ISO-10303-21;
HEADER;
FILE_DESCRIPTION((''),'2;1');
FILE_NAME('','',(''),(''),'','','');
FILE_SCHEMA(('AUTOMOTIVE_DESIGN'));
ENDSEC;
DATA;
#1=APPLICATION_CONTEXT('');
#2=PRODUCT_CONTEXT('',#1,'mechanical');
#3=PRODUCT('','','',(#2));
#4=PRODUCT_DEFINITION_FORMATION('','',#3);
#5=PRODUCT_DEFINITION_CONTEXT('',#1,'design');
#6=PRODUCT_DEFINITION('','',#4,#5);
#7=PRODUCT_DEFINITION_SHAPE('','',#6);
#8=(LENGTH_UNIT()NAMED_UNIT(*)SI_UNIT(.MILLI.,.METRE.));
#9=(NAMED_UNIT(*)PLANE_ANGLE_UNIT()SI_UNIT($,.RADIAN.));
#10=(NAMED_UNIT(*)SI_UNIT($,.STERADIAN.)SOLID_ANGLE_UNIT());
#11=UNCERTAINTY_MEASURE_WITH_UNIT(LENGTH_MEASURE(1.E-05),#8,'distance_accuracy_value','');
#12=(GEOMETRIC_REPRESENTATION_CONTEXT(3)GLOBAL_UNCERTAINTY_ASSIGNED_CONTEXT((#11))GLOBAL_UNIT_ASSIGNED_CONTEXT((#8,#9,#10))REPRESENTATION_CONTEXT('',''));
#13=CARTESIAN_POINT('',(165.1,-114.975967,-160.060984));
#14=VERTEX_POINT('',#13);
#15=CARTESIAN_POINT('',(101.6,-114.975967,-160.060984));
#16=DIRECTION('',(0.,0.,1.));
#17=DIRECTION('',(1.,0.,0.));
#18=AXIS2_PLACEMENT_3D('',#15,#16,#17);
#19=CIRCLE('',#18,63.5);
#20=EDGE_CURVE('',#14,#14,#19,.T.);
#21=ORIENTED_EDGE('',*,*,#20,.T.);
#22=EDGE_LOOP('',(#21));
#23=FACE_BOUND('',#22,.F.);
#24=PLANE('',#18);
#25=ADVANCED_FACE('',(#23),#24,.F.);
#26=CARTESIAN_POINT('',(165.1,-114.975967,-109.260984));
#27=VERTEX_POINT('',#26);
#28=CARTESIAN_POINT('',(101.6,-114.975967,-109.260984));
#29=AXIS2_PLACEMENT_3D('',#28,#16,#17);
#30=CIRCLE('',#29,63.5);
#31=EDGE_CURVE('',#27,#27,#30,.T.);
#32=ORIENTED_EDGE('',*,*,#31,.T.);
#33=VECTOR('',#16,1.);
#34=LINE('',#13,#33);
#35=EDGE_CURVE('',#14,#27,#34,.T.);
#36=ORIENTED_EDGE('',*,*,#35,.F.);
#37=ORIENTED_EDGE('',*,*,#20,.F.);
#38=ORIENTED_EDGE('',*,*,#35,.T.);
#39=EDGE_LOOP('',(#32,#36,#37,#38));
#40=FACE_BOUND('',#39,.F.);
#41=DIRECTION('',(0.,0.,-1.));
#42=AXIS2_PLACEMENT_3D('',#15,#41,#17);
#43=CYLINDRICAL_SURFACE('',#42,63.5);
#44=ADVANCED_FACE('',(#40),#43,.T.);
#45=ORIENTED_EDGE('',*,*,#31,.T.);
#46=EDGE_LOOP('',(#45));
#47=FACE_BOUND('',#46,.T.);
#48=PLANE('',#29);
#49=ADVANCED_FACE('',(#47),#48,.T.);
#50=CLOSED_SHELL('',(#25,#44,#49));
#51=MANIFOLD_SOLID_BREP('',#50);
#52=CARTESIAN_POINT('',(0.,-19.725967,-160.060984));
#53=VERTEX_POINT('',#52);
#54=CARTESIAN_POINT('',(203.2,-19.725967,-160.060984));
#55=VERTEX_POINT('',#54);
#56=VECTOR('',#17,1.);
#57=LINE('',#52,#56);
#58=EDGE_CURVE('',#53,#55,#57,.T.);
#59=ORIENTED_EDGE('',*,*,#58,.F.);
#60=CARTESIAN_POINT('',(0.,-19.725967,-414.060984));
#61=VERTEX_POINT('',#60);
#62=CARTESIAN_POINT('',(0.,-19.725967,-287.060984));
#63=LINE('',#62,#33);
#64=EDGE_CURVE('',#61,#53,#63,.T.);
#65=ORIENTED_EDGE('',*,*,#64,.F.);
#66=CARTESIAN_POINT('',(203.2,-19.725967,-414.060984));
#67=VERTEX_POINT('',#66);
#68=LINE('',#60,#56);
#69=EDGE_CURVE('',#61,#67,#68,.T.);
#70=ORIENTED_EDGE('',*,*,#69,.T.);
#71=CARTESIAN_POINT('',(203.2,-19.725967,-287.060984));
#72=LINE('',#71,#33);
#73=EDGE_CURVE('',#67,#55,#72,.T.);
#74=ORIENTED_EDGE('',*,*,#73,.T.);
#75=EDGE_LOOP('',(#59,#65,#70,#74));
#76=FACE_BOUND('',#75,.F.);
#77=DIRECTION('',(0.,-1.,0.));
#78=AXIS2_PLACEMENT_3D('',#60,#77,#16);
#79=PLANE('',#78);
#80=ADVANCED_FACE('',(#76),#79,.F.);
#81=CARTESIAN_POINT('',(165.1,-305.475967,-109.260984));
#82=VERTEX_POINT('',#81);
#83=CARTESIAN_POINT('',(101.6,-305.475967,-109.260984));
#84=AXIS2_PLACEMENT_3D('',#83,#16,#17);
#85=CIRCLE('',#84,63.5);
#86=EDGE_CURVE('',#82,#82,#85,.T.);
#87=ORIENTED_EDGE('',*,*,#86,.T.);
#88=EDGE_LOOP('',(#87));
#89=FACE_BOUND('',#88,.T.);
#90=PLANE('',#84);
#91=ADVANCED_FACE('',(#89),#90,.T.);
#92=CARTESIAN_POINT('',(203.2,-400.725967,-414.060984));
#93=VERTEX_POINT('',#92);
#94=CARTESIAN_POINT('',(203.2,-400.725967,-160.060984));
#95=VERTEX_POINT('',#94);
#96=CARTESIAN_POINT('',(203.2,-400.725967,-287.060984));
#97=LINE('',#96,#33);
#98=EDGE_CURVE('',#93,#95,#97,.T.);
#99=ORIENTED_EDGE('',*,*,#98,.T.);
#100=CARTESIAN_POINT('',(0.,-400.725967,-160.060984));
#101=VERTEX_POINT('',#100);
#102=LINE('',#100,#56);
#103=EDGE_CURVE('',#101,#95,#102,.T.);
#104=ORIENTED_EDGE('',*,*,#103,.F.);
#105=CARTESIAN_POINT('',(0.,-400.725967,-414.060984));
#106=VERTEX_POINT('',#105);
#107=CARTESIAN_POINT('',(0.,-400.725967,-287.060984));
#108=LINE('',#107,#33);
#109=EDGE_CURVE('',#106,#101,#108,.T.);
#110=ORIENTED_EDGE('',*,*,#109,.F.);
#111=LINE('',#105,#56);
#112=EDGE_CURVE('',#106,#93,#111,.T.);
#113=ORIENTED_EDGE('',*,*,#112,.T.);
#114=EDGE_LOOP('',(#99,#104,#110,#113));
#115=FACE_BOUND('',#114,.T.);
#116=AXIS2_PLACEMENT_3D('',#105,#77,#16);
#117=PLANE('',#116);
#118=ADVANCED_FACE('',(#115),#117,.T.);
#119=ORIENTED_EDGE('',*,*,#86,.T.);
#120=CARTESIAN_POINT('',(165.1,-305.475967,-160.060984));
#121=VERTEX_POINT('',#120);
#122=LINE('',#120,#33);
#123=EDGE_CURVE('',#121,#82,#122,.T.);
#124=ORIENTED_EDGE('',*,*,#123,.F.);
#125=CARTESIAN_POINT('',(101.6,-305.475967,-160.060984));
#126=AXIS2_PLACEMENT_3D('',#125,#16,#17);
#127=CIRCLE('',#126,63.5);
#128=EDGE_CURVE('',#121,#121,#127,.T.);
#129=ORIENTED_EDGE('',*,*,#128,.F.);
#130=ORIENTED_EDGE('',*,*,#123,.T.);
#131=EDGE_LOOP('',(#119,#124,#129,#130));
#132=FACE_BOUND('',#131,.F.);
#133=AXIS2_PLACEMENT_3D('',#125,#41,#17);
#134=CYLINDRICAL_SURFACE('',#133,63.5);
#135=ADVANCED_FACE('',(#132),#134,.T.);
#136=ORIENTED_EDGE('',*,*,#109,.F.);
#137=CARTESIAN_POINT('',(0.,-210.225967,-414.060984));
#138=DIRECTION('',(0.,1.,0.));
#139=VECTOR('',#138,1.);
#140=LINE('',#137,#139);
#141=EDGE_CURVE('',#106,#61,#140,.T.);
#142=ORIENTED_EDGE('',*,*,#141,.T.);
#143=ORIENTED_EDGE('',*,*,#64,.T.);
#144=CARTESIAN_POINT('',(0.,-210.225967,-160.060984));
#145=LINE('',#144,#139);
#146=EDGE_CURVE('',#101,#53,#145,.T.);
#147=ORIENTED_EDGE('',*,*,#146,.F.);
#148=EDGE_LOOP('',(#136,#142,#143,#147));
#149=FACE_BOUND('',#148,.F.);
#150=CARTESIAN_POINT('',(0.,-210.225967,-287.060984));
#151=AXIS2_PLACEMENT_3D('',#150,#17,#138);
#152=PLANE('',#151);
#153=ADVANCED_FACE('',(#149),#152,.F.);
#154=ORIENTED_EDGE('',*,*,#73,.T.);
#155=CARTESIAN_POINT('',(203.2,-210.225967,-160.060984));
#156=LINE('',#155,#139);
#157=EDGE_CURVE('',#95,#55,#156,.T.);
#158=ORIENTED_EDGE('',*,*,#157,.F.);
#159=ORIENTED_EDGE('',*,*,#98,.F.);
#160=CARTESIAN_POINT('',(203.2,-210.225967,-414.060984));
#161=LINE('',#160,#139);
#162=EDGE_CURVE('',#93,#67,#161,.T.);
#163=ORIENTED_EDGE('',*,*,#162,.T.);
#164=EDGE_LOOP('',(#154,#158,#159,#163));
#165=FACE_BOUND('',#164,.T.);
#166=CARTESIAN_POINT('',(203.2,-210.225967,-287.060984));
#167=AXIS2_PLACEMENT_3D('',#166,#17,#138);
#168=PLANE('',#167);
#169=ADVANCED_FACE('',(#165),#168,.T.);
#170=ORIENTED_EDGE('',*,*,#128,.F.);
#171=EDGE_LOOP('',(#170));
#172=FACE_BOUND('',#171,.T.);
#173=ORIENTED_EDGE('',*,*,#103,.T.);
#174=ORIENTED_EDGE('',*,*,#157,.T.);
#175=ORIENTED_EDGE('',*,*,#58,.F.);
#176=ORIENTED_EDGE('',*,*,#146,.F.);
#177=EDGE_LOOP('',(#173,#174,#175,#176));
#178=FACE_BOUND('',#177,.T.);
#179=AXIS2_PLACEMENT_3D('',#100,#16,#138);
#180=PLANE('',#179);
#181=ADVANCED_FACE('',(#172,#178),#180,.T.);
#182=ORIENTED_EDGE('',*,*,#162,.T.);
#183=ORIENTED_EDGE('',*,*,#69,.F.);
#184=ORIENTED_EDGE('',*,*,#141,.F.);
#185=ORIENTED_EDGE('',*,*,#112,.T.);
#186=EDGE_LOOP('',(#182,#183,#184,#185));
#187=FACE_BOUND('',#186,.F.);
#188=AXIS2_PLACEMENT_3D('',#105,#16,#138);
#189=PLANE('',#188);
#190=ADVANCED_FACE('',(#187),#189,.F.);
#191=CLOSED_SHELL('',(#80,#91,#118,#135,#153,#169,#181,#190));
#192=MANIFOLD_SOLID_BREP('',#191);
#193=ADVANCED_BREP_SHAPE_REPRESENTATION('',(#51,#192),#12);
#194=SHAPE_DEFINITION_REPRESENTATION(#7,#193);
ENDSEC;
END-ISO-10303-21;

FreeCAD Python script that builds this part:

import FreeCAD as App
import Part
import Sketcher
from FreeCAD import Vector
Q = App.Units.Quantity

doc = App.newDocument("Part")
params = doc.addObject("Spreadsheet::Sheet", "Params")
for row, (alias, value) in enumerate([
    ("sketch1_width", "15 in"),
    ("sketch1_height", "10 in"),
    ("pad1_length", "8 in"),
    ("sketch2_diameter", "5 in"),
    ("pad2_length", "2 in"),
    ("sketch3_diameter", "1 in"),
    ("pad3_length", "6 in"),
    ("sketch4_diameter", "5 in"),
    ("pad4_length", "2 in"),
], start=1):
    params.set(f"A{row}", alias)
    params.set(f"B{row}", "=" + value)
    params.setAlias(f"B{row}", alias)

body = doc.addObject("PartDesign::Body", "Body")

sketch1 = body.newObject("Sketcher::SketchObject", "Sketch")
sketch1.AttachmentSupport = (doc.getObject("YZ_Plane"), [""])
sketch1.MapMode = "FlatFace"
sketch1.addGeometry([
    Part.LineSegment(Vector(-400.725967, -160.060984, 0), Vector(-400.725967, -414.060984, 0)),
    Part.LineSegment(Vector(-400.725967, -414.060984, 0), Vector(-19.725967, -414.060984, 0)),
    Part.LineSegment(Vector(-19.725967, -414.060984, 0), Vector(-19.725967, -160.060984, 0)),
    Part.LineSegment(Vector(-19.725967, -160.060984, 0), Vector(-400.725967, -160.060984, 0)),
], False)
sketch1.addConstraint([
    Sketcher.Constraint("Coincident", 0, 2, 1, 1),
    Sketcher.Constraint("Coincident", 1, 2, 2, 1),
    Sketcher.Constraint("Coincident", 2, 2, 3, 1),
    Sketcher.Constraint("Coincident", 3, 2, 0, 1),
    Sketcher.Constraint("Vertical", 0),
    Sketcher.Constraint("Horizontal", 1),
    Sketcher.Constraint("Vertical", 2),
    Sketcher.Constraint("Horizontal", 3),
    Sketcher.Constraint("DistanceX", 1, 1, 1, 2, Q("15 in")),
    Sketcher.Constraint("DistanceY", 0, 2, 0, 1, Q("10 in")),
    Sketcher.Constraint("DistanceX", 0, 2, -1, 1, 400.725967),
    Sketcher.Constraint("DistanceY", 0, 2, -1, 1, 414.060984),
])
sketch1.setExpression("Constraints[8]", "Params.sketch1_width")
sketch1.setExpression("Constraints[9]", "Params.sketch1_height")
pad1 = body.newObject("PartDesign::Pad", "Pad")
pad1.Profile = sketch1
pad1.setExpression("Length", "Params.pad1_length")

sketch2 = body.newObject("Sketcher::SketchObject", "Sketch001")
sketch2.AttachmentSupport = (doc.getObject("XY_Plane"), [""])
sketch2.MapMode = "FlatFace"
sketch2.AttachmentOffset = App.Placement(Vector(0, 0, -160.060984), App.Rotation())
sketch2.addGeometry(Part.Circle(Vector(101.6, -305.475967, 0), Vector(0, 0, 1), 63.5), False)
sketch2.addConstraint([
    Sketcher.Constraint("Diameter", 0, Q("5 in")),
    Sketcher.Constraint("DistanceX", -1, 1, 0, 3, Q("4 in")),
    Sketcher.Constraint("DistanceY", 0, 3, -1, 1, 305.475967),
])
sketch2.setExpression("Constraints[0]", "Params.sketch2_diameter")
pad2 = body.newObject("PartDesign::Pad", "Pad001")
pad2.Profile = sketch2
pad2.setExpression("Length", "Params.pad2_length")

sketch3 = body.newObject("Sketcher::SketchObject", "Sketch002")
sketch3.AttachmentSupport = (doc.getObject("XY_Plane"), [""])
sketch3.MapMode = "FlatFace"
sketch3.AttachmentOffset = App.Placement(Vector(0, 0, -414.060984), App.Rotation())
sketch3.addGeometry(Part.Circle(Vector(101.6, -210.225967, 0), Vector(0, 0, 1), 12.7), False)
sketch3.addConstraint([
    Sketcher.Constraint("Diameter", 0, Q("1 in")),
    Sketcher.Constraint("DistanceX", -1, 1, 0, 3, Q("4 in")),
    Sketcher.Constraint("DistanceY", 0, 3, -1, 1, 210.225967),
])
sketch3.setExpression("Constraints[0]", "Params.sketch3_diameter")
pad3 = body.newObject("PartDesign::Pad", "Pad002")
pad3.Profile = sketch3
pad3.setExpression("Length", "Params.pad3_length")
body2 = doc.addObject("PartDesign::Body", "Body001")

sketch4 = body2.newObject("Sketcher::SketchObject", "Sketch003")
sketch4.AttachmentSupport = (doc.getObject("XY_Plane001"), [""])
sketch4.MapMode = "FlatFace"
sketch4.AttachmentOffset = App.Placement(Vector(0, 0, -160.060984), App.Rotation())
sketch4.addGeometry(Part.Circle(Vector(101.6, -114.975967, 0), Vector(0, 0, 1), 63.5), False)
sketch4.addConstraint([
    Sketcher.Constraint("Diameter", 0, Q("5 in")),
    Sketcher.Constraint("DistanceX", -1, 1, 0, 3, Q("4 in")),
    Sketcher.Constraint("DistanceY", 0, 3, -1, 1, 114.975967),
])
sketch4.setExpression("Constraints[0]", "Params.sketch4_diameter")
pad4 = body2.newObject("PartDesign::Pad", "Pad003")
pad4.Profile = sketch4
pad4.setExpression("Length", "Params.pad4_length")

doc.recompute()
